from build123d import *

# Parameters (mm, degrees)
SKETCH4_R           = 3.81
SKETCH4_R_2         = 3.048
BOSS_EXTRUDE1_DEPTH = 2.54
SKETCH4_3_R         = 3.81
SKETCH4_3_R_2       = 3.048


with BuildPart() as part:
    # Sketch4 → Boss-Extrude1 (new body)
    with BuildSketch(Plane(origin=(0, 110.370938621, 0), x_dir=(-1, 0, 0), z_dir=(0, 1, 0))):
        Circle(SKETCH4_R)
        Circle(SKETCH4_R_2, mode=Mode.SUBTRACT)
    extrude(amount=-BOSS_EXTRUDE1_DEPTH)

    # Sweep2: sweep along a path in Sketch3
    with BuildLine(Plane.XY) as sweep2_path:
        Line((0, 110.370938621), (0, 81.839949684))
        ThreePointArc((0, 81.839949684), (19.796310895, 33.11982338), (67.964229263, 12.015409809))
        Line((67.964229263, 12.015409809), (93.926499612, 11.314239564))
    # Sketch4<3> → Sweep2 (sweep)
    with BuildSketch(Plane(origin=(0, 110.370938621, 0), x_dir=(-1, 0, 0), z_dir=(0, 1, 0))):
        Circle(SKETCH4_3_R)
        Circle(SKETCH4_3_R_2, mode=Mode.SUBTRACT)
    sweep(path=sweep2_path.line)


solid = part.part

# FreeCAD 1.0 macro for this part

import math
import FreeCAD as App
import Part
import Sketcher
from FreeCAD import Vector
Q = App.Units.Quantity

doc = App.newDocument("Part")
body = doc.addObject("PartDesign::Body", "Body")

# Sketch on XZ plane
sketch1 = body.newObject("Sketcher::SketchObject", "Sketch")
sketch1.AttachmentSupport = (doc.getObject("XZ_Plane"), [""])
sketch1.MapMode = "FlatFace"
sketch1.AttachmentOffset = App.Placement(Vector(0, 0, -110.370939), App.Rotation())
sketch1.addGeometry(Part.Circle(Vector(0, 0, 0), Vector(0, 0, 1), 3.81), False)
sketch1.addGeometry(Part.Circle(Vector(0, 0, 0), Vector(0, 0, 1), 3.048), False)
sketch1.addConstraint(Sketcher.Constraint("Coincident", 0, 3, -1, 1))
sketch1.addConstraint(Sketcher.Constraint("Coincident", 1, 3, -1, 1))
sketch1.addConstraint(Sketcher.Constraint("Diameter", 0, Q("0.3 in")))
sketch1.addConstraint(Sketcher.Constraint("Diameter", 1, Q("0.24 in")))
pad1 = body.newObject("PartDesign::Pad", "Pad")
pad1.Profile = sketch1
pad1.Length = Q("0.1 in")

# Sketch on XZ plane
sketch2 = body.newObject("Sketcher::SketchObject", "Sketch001")
sketch2.AttachmentSupport = (doc.getObject("XZ_Plane"), [""])
sketch2.MapMode = "FlatFace"
sketch2.AttachmentOffset = App.Placement(Vector(0, 0, -110.370939), App.Rotation())
sketch2.addGeometry(Part.Circle(Vector(0, 0, 0), Vector(0, 0, 1), 3.81), False)
sketch2.addGeometry(Part.Circle(Vector(0, 0, 0), Vector(0, 0, 1), 3.048), False)
sketch2.addConstraint(Sketcher.Constraint("Coincident", 0, 3, -1, 1))
sketch2.addConstraint(Sketcher.Constraint("Coincident", 1, 3, -1, 1))
sketch2.addConstraint(Sketcher.Constraint("Diameter", 0, Q("0.3 in")))
sketch2.addConstraint(Sketcher.Constraint("Diameter", 1, Q("0.24 in")))

# Sketch on XY plane
sketch3 = body.newObject("Sketcher::SketchObject", "Sketch002")
sketch3.AttachmentSupport = (doc.getObject("XY_Plane"), [""])
sketch3.MapMode = "FlatFace"
sketch3.addGeometry(Part.LineSegment(Vector(0, 110.370939, 0), Vector(0, 81.83995, 0)), False)
sketch3.addGeometry(Part.ArcOfCircle(Part.Circle(Vector(69.85, 81.83995, 0), Vector(0, 0, 1), 69.85), math.radians(180), math.radians(268.452973)), False)
sketch3.addGeometry(Part.LineSegment(Vector(67.964229, 12.01541, 0), Vector(93.9265, 11.31424, 0)), False)
sketch3.addConstraint(Sketcher.Constraint("Tangent", 0, 2, 1, 1))
sketch3.addConstraint(Sketcher.Constraint("Tangent", 1, 2, 2, 1))
sketch3.addConstraint(Sketcher.Constraint("Vertical", 0))
sketch3.addConstraint(Sketcher.Constraint("PointOnObject", 0, 1, -2))
sketch3.addConstraint(Sketcher.Constraint("Radius", 1, Q("2.75 in")))
sketch3.addConstraint(Sketcher.Constraint("DistanceY", 0, 2, 0, 1, Q("28.530989 mm")))
sketch3.addConstraint(Sketcher.Constraint("DistanceX", -1, 1, 2, 2, Q("93.9265 mm")))
sketch3.addConstraint(Sketcher.Constraint("DistanceY", 2, 2, 0, 1, Q("99.056699 mm")))
sketch3.addConstraint(Sketcher.Constraint("DistanceY", -1, 1, 1, 3, Q("81.83995 mm")))
doc.recompute()

additivepipe = body.newObject("PartDesign::AdditivePipe", "AdditivePipe")
additivepipe.Profile = sketch2
additivepipe.Spine = (sketch3, ["Edge1", "Edge2", "Edge3"])

doc.recompute()
